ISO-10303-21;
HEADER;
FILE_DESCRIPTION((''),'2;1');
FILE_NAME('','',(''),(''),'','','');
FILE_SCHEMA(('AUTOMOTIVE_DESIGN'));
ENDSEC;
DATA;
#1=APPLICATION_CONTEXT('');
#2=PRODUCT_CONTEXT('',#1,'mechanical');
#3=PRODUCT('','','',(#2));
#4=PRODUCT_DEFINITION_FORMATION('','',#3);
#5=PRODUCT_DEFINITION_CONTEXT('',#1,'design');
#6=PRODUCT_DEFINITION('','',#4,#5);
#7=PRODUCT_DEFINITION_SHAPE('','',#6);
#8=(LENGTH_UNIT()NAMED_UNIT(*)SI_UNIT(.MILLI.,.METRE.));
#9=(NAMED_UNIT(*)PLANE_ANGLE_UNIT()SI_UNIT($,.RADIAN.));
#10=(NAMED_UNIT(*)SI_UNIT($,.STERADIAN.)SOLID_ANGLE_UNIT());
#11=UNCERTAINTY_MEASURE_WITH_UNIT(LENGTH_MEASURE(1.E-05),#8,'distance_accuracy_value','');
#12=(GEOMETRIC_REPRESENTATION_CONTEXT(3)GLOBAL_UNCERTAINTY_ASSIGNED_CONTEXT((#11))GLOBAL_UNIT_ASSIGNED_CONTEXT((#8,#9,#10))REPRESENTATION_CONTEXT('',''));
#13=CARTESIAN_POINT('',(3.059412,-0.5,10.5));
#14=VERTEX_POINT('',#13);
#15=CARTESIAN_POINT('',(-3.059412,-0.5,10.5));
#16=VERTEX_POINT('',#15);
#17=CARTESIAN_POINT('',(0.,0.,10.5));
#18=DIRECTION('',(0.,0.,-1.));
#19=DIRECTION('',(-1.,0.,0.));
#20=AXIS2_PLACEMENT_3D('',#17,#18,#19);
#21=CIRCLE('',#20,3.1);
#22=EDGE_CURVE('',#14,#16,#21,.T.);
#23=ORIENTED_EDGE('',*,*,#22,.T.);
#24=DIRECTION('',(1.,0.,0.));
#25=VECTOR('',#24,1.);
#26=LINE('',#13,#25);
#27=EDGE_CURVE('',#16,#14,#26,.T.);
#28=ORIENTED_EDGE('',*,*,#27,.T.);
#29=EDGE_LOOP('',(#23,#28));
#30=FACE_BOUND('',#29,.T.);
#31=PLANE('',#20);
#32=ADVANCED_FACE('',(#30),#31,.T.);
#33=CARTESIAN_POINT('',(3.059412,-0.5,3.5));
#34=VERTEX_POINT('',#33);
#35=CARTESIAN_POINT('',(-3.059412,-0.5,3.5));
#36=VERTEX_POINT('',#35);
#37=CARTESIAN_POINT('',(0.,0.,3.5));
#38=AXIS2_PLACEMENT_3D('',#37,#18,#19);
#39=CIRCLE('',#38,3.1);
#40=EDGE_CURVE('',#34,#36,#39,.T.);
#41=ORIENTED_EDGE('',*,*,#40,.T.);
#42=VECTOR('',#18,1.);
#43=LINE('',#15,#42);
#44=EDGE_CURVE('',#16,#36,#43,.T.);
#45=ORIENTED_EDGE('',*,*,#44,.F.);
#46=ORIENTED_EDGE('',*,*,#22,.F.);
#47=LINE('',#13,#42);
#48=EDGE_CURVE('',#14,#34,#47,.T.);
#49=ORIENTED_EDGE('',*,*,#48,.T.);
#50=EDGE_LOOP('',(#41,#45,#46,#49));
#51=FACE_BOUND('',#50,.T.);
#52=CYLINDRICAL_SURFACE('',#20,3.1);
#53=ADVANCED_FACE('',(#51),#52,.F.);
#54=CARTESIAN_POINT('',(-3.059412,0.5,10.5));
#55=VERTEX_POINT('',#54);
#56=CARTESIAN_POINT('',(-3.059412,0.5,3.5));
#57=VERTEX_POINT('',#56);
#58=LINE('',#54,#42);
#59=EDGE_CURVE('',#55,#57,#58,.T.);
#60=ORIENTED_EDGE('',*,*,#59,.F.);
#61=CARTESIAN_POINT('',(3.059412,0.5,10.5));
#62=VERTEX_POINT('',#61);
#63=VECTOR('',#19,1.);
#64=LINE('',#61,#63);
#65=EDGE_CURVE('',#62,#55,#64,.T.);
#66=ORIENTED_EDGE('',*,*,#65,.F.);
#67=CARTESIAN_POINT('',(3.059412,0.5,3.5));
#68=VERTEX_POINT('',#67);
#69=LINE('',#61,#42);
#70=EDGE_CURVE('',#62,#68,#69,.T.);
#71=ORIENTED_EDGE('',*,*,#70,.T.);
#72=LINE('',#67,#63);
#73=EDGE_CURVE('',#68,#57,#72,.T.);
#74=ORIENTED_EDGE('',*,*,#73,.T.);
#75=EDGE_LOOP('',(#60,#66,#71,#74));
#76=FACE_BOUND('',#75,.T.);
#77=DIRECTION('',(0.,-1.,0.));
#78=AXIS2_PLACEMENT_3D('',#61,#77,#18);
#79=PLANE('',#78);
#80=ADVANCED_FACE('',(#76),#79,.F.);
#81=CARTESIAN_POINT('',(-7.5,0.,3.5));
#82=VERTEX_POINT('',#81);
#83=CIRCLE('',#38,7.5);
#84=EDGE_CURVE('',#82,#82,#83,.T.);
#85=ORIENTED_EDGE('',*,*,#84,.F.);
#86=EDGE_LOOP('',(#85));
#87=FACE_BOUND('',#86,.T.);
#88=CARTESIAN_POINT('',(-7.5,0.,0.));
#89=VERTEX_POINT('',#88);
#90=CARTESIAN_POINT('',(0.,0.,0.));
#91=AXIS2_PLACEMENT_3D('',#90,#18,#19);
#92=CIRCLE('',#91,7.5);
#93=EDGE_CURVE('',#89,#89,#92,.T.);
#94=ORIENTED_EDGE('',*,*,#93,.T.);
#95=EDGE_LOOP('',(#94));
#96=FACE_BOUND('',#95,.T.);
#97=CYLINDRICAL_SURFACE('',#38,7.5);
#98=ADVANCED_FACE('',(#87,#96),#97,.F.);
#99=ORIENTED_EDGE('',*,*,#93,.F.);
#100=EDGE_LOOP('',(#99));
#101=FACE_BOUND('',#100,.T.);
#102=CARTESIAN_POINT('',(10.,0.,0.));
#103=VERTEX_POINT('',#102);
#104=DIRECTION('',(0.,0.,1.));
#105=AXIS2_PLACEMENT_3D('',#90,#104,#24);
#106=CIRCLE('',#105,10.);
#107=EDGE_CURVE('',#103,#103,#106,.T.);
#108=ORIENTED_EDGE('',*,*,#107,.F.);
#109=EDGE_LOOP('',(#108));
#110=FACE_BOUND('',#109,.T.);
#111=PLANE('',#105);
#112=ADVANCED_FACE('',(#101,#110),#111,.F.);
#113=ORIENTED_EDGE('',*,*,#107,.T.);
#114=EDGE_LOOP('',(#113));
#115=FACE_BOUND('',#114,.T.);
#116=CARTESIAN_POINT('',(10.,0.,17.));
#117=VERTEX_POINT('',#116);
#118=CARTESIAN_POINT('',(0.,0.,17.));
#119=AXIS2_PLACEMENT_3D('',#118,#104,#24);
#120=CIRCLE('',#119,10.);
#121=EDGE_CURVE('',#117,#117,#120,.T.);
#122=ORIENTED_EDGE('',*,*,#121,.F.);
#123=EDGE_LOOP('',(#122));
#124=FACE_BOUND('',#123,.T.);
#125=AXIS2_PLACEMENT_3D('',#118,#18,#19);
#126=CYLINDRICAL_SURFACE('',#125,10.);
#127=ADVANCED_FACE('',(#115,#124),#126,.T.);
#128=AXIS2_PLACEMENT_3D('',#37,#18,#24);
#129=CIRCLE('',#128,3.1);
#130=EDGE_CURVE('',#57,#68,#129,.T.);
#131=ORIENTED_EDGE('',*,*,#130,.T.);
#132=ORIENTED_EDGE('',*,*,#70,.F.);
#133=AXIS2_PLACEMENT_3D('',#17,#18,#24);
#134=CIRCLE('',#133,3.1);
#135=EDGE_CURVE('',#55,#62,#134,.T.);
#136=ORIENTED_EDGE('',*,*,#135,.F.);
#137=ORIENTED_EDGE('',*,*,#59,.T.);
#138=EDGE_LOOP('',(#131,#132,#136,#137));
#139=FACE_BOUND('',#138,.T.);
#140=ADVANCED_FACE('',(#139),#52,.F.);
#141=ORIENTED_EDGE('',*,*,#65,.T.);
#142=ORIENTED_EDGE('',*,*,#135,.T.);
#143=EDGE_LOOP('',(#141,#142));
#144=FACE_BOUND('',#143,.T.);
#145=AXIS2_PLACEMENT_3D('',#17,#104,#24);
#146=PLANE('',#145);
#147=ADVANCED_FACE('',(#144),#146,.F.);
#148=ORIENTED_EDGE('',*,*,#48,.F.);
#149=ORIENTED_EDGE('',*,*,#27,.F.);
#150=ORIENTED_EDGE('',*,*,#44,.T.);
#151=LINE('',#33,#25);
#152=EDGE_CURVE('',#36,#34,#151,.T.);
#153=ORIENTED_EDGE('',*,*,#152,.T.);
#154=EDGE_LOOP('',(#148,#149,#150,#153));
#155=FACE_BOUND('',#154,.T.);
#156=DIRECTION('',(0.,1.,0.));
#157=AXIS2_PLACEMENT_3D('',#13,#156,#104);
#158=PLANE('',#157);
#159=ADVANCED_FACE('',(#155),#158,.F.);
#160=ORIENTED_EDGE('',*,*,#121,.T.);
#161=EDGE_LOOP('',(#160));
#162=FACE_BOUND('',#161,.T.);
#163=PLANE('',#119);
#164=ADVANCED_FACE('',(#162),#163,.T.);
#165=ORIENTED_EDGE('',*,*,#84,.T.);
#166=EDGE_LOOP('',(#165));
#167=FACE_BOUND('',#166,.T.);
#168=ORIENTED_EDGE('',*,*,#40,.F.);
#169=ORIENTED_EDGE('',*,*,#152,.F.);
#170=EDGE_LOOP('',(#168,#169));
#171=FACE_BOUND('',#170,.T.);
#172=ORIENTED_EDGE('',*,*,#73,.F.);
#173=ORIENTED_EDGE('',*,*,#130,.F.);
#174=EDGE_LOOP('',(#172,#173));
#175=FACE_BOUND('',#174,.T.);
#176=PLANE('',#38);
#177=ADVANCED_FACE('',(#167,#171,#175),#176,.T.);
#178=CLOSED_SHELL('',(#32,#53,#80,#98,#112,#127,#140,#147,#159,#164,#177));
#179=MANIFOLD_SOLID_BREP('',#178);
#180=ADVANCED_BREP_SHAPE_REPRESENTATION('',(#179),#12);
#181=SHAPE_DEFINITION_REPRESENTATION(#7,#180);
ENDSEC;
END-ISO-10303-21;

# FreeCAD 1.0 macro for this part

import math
import FreeCAD as App
import Part
import Sketcher
Q = App.Units.Quantity

doc = App.newDocument("Part")
body = doc.addObject("PartDesign::Body", "Body")

# Sketch on XY plane
sketch1 = body.newObject("Sketcher::SketchObject", "Sketch")
sketch1.AttachmentSupport = (doc.getObject("XY_Plane"), [""])
sketch1.MapMode = "FlatFace"
sketch1.addGeometry(Part.Circle(App.Vector(0, 0, 0), App.Vector(0, 0, 1), 10), False)
sketch1.addConstraint(Sketcher.Constraint("Coincident", 0, 3, -1, 1))
sketch1.addConstraint(Sketcher.Constraint("Diameter", 0, Q("20 mm")))
pad1 = body.newObject("PartDesign::Pad", "Pad")
pad1.Profile = sketch1
pad1.Length = 17

# Sketch on XY plane
sketch2 = body.newObject("Sketcher::SketchObject", "Sketch001")
sketch2.AttachmentSupport = (doc.getObject("XY_Plane"), [""])
sketch2.MapMode = "FlatFace"
sketch2.addGeometry(Part.Circle(App.Vector(0, 0, 0), App.Vector(0, 0, 1), 8), False)
sketch2.addConstraint(Sketcher.Constraint("Coincident", 0, 3, -1, 1))
sketch2.addConstraint(Sketcher.Constraint("Diameter", 0, Q("15 mm")))
pocket1 = body.newObject("PartDesign::Pocket", "Pocket")
pocket1.Profile = sketch2
pocket1.Length = 3.5
pocket1.Reversed = True

# Sketch on XY plane
sketch3 = body.newObject("Sketcher::SketchObject", "Sketch002")
sketch3.AttachmentSupport = (doc.getObject("XY_Plane"), [""])
sketch3.MapMode = "FlatFace"
sketch3.AttachmentOffset = App.Placement(App.Vector(0, 0, 3.5), App.Rotation())
sketch3.addGeometry(Part.LineSegment(App.Vector(3.1, 0.5, 0), App.Vector(-3.1, 0.5, 0)), False)
sketch3.addGeometry(Part.ArcOfCircle(Part.Circle(App.Vector(0, 0, 0), App.Vector(0, 0, 1), 3.1), math.radians(9), math.radians(171)), False)
sketch3.addGeometry(Part.LineSegment(App.Vector(-3.1, -0.5, 0), App.Vector(3.1, -0.5, 0)), False)
sketch3.addGeometry(Part.ArcOfCircle(Part.Circle(App.Vector(0, 0, 0), App.Vector(0, 0, 1), 3.1), math.radians(-171), math.radians(-9)), False)
sketch3.addConstraint(Sketcher.Constraint("Coincident", 0, 1, 1, 1))
sketch3.addConstraint(Sketcher.Constraint("Coincident", 1, 2, 0, 2))
sketch3.addConstraint(Sketcher.Constraint("Coincident", 2, 1, 3, 1))
sketch3.addConstraint(Sketcher.Constraint("Coincident", 3, 2, 2, 2))
sketch3.addConstraint(Sketcher.Constraint("Horizontal", 0))
sketch3.addConstraint(Sketcher.Constraint("Horizontal", 2))
sketch3.addConstraint(Sketcher.Constraint("Coincident", 1, 3, -1, 1))
sketch3.addConstraint(Sketcher.Constraint("Coincident", 3, 3, -1, 1))
sketch3.addConstraint(Sketcher.Constraint("Equal", 1, 3))
sketch3.addConstraint(Sketcher.Constraint("Vertical", 1, 2, 2, 1))
sketch3.addConstraint(Sketcher.Constraint("Radius", 1, Q("3.1 mm")))
sketch3.addConstraint(Sketcher.Constraint("DistanceY", 2, 1, 1, 2, Q("1 mm")))
pocket2 = body.newObject("PartDesign::Pocket", "Pocket001")
pocket2.Profile = sketch3
pocket2.Length = 7
pocket2.Reversed = True

doc.recompute()
